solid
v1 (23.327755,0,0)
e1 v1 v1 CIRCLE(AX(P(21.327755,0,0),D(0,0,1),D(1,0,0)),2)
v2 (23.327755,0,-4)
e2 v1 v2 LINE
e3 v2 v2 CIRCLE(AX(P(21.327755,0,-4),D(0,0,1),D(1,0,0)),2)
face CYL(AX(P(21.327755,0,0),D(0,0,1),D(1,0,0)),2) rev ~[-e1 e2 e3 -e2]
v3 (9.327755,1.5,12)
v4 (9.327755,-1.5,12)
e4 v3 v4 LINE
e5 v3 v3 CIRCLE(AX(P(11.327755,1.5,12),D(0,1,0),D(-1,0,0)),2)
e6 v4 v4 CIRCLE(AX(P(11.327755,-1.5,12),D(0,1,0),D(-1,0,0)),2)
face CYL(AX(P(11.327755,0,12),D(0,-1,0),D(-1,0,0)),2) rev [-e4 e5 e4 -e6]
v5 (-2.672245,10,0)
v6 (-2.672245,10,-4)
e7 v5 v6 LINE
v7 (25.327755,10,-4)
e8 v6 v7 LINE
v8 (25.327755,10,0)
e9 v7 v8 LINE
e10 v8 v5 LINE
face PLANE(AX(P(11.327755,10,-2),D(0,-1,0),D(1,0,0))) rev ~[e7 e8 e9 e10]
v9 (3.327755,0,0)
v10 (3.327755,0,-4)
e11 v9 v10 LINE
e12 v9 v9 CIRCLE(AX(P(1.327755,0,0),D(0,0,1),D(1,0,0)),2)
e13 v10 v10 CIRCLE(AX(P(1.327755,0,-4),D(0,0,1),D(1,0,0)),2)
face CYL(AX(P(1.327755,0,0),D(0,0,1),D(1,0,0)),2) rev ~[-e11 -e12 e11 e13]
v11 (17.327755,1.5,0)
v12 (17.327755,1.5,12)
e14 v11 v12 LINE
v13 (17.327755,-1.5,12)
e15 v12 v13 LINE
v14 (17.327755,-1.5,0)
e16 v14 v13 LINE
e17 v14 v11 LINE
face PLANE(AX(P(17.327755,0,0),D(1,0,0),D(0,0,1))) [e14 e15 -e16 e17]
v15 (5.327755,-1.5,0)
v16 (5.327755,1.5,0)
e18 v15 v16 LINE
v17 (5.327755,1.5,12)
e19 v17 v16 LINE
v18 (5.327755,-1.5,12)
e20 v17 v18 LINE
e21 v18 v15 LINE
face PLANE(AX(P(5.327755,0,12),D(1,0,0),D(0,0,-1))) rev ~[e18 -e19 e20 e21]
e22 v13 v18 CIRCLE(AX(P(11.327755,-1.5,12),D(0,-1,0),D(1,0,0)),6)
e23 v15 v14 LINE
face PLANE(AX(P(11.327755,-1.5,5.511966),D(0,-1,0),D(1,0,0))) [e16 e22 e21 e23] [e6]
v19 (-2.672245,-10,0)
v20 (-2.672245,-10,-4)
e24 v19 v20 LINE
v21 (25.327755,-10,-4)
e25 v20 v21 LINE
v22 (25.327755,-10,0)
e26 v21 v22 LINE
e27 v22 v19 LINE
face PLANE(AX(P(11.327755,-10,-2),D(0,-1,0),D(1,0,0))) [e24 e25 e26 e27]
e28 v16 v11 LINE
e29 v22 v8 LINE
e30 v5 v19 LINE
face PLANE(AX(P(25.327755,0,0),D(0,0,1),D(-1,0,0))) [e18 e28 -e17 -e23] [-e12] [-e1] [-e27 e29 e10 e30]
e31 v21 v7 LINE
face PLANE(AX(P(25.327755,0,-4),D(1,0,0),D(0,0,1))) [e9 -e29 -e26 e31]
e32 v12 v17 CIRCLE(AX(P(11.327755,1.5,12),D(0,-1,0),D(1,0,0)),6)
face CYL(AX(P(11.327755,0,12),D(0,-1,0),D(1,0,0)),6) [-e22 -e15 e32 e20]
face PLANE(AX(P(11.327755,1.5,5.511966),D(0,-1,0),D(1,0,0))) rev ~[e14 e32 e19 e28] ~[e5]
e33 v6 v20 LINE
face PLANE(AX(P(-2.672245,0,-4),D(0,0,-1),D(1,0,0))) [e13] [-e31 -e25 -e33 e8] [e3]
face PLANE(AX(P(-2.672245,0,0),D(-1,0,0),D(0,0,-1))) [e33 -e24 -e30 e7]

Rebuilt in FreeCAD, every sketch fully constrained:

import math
import FreeCAD as App
import Part
import Sketcher
from FreeCAD import Vector

doc = App.newDocument("Part")
params = doc.addObject("Spreadsheet::Sheet", "Params")
for row, (alias, value) in enumerate([
    ("sketch1_width", "28 mm"),
    ("sketch1_height", "4 mm"),
    ("pad1_length", "10 mm"),
    ("pad1_length2", "10 mm"),
    ("sketch2_diameter", "4 mm"),
    ("sketch2_radius", "6 mm"),
    ("pad2_length", "1.5 mm"),
    ("pad2_length2", "1.5 mm"),
    ("sketch3_diameter", "4 mm"),
    ("pocket1_length", "5 mm"),
    ("pocket2_length", "5 mm"),
], start=1):
    params.set(f"A{row}", alias)
    params.set(f"B{row}", "=" + value)
    params.setAlias(f"B{row}", alias)

body = doc.addObject("PartDesign::Body", "Body")

sketch1 = body.newObject("Sketcher::SketchObject", "Sketch")
sketch1.AttachmentSupport = (doc.getObject("XZ_Plane"), [""])
sketch1.MapMode = "FlatFace"
sketch1.addGeometry([
    Part.LineSegment(Vector(25.327755, 0, 0), Vector(-2.672245, 0, 0)),
    Part.LineSegment(Vector(-2.672245, 0, 0), Vector(-2.672245, -4, 0)),
    Part.LineSegment(Vector(-2.672245, -4, 0), Vector(25.327755, -4, 0)),
    Part.LineSegment(Vector(25.327755, -4, 0), Vector(25.327755, 0, 0)),
], False)
sketch1.addConstraint([
    Sketcher.Constraint("Coincident", 0, 2, 1, 1),
    Sketcher.Constraint("Coincident", 1, 2, 2, 1),
    Sketcher.Constraint("Coincident", 2, 2, 3, 1),
    Sketcher.Constraint("Coincident", 3, 2, 0, 1),
    Sketcher.Constraint("Horizontal", 0),
    Sketcher.Constraint("Vertical", 1),
    Sketcher.Constraint("Horizontal", 2),
    Sketcher.Constraint("Vertical", 3),
    Sketcher.Constraint("PointOnObject", 0, 2, -1),
    Sketcher.Constraint("DistanceX", 0, 2, 0, 1, 28.0),
    Sketcher.Constraint("DistanceY", 1, 2, 1, 1, 4.0),
    Sketcher.Constraint("DistanceX", 0, 2, -1, 1, 2.672245),
])
sketch1.setExpression("Constraints[9]", "Params.sketch1_width")
sketch1.setExpression("Constraints[10]", "Params.sketch1_height")
pad1 = body.newObject("PartDesign::Pad", "Pad")
pad1.Profile = sketch1
pad1.Type = "TwoLengths"
pad1.setExpression("Length", "Params.pad1_length")
pad1.setExpression("Length2", "Params.pad1_length2")

sketch2 = body.newObject("Sketcher::SketchObject", "Sketch001")
sketch2.AttachmentSupport = (doc.getObject("XZ_Plane"), [""])
sketch2.MapMode = "FlatFace"
sketch2.addGeometry([
    Part.LineSegment(Vector(5.327755, 0, 0), Vector(17.327755, 0, 0)),
    Part.LineSegment(Vector(17.327755, 0, 0), Vector(17.327755, 12, 0)),
    Part.ArcOfCircle(Part.Circle(Vector(11.327755, 12, 0), Vector(0, 0, 1), 6), math.radians(0), math.radians(180)),
    Part.LineSegment(Vector(5.327755, 12, 0), Vector(5.327755, 0, 0)),
    Part.Circle(Vector(11.327755, 12, 0), Vector(0, 0, 1), 2),
], False)
sketch2.addConstraint([
    Sketcher.Constraint("Coincident", 0, 2, 1, 1),
    Sketcher.Constraint("Tangent", 1, 2, 2, 1),
    Sketcher.Constraint("Tangent", 2, 2, 3, 1),
    Sketcher.Constraint("Coincident", 3, 2, 0, 1),
    Sketcher.Constraint("Horizontal", 0),
    Sketcher.Constraint("Vertical", 1),
    Sketcher.Constraint("Vertical", 3),
    Sketcher.Constraint("Coincident", 4, 3, 2, 3),
    Sketcher.Constraint("PointOnObject", 0, 2, -1),
    Sketcher.Constraint("Equal", 0, 1),
    Sketcher.Constraint("Diameter", 4, 4.0),
    Sketcher.Constraint("Radius", 2, 6.0),
    Sketcher.Constraint("DistanceX", -1, 1, 2, 3, 11.327755),
])
sketch2.setExpression("Constraints[10]", "Params.sketch2_diameter")
sketch2.setExpression("Constraints[11]", "Params.sketch2_radius")
pad2 = body.newObject("PartDesign::Pad", "Pad001")
pad2.Profile = sketch2
pad2.Type = "TwoLengths"
pad2.setExpression("Length", "Params.pad2_length")
pad2.setExpression("Length2", "Params.pad2_length2")

sketch3 = body.newObject("Sketcher::SketchObject", "Sketch002")
sketch3.AttachmentSupport = (doc.getObject("XY_Plane"), [""])
sketch3.MapMode = "FlatFace"
sketch3.addGeometry([
    Part.Circle(Vector(1.327755, 0, 0), Vector(0, 0, 1), 2),
    Part.Circle(Vector(21.327755, 0, 0), Vector(0, 0, 1), 2),
], False)
sketch3.addConstraint([
    Sketcher.Constraint("Equal", 0, 1),
    Sketcher.Constraint("PointOnObject", 0, 3, -1),
    Sketcher.Constraint("PointOnObject", 1, 3, -1),
    Sketcher.Constraint("Diameter", 0, 4.0),
    Sketcher.Constraint("DistanceX", 0, 3, 1, 3, 20.0),
    Sketcher.Constraint("DistanceX", -1, 1, 0, 3, 1.327755),
])
sketch3.setExpression("Constraints[3]", "Params.sketch3_diameter")
pocket1 = body.newObject("PartDesign::Pocket", "Pocket")
pocket1.Profile = sketch3
pocket1.setExpression("Length", "Params.pocket1_length")
pocket2 = body.newObject("PartDesign::Pocket", "Pocket001")
pocket2.Profile = sketch3
pocket2.setExpression("Length", "Params.pocket2_length")

doc.recompute()
